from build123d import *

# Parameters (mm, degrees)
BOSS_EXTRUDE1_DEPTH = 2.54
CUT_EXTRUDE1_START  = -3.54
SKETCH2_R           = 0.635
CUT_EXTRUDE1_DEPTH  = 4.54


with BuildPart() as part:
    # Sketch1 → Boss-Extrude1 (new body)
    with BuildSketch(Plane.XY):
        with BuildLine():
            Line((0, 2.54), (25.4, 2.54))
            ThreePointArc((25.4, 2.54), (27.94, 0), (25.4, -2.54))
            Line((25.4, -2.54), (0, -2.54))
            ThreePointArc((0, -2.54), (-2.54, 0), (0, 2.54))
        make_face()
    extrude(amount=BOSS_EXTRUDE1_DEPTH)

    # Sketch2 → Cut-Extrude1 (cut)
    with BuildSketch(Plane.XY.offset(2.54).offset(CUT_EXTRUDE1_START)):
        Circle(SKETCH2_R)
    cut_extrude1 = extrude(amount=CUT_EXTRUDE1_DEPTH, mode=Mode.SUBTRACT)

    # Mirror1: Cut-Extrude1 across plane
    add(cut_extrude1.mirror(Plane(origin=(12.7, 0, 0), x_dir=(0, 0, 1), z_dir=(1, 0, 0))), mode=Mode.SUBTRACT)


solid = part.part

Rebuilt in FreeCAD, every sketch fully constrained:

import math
import FreeCAD as App
import Part
import Sketcher
Q = App.Units.Quantity

doc = App.newDocument("Part")
body = doc.addObject("PartDesign::Body", "Body")

# Sketch on XY plane
sketch1 = doc.addObject("Sketcher::SketchObject", "Sketch")
body.addObject(sketch1)
sketch1.AttachmentSupport = (doc.XY_Plane, [""])
sketch1.MapMode = "FlatFace"
sketch1.addGeometry([
    Part.LineSegment(App.Vector(25.4, 2.5, 0), App.Vector(0, 2.5, 0)),
    Part.ArcOfCircle(Part.Circle(App.Vector(0, 0, 0), App.Vector(0, 0, 1), 2.5), math.radians(90), math.radians(270)),
    Part.LineSegment(App.Vector(0, -2.5, 0), App.Vector(25.4, -2.5, 0)),
    Part.ArcOfCircle(Part.Circle(App.Vector(25.4, 0, 0), App.Vector(0, 0, 1), 2.5), math.radians(-90), math.radians(90)),
], False)
sketch1.addConstraint([
    Sketcher.Constraint("Tangent", 0, 2, 1, 1),
    Sketcher.Constraint("Tangent", 1, 2, 2, 1),
    Sketcher.Constraint("Tangent", 2, 2, 3, 1),
    Sketcher.Constraint("Tangent", 3, 2, 0, 1),
    Sketcher.Constraint("Horizontal", 0),
    Sketcher.Constraint("Horizontal", 2),
    Sketcher.Constraint("Coincident", 1, 3, -1, 1),
    Sketcher.Constraint("Radius", 1, Q("0.1 in")),
    Sketcher.Constraint("DistanceX", 0, 2, 0, 1, Q("1 in")),
])
pad1 = doc.addObject("PartDesign::Pad", "Pad")
body.addObject(pad1)
pad1.Profile = sketch1
pad1.Length = Q("0.1 in")

# Sketch on XY plane
sketch2 = doc.addObject("Sketcher::SketchObject", "Sketch001")
body.addObject(sketch2)
sketch2.AttachmentSupport = (doc.XY_Plane, [""])
sketch2.MapMode = "FlatFace"
sketch2.AttachmentOffset = App.Placement(App.Vector(0, 0, -1), App.Rotation())
sketch2.addGeometry(Part.Circle(App.Vector(0, 0, 0), App.Vector(0, 0, 1), 0.6), False)
sketch2.addConstraint([
    Sketcher.Constraint("Coincident", 0, 3, -1, 1),
    Sketcher.Constraint("Diameter", 0, Q("0.05 in")),
])
pocket1 = doc.addObject("PartDesign::Pocket", "Pocket")
body.addObject(pocket1)
pocket1.Profile = sketch2
pocket1.Length = 4.54
pocket1.Reversed = True
doc.recompute()

datumplane = doc.addObject("PartDesign::Plane", "DatumPlane")
body.addObject(datumplane)
datumplane.AttachmentSupport = (doc.YZ_Plane, [""])
datumplane.MapMode = "FlatFace"
datumplane.AttachmentOffset = App.Placement(App.Vector(0, 0, 0.5 * 25.4), App.Rotation())
mirrored = doc.addObject("PartDesign::Mirrored", "Mirrored")
body.addObject(mirrored)
mirrored.Originals = [pocket1]
mirrored.MirrorPlane = (datumplane, [""])
body.Tip = mirrored

doc.recompute()
